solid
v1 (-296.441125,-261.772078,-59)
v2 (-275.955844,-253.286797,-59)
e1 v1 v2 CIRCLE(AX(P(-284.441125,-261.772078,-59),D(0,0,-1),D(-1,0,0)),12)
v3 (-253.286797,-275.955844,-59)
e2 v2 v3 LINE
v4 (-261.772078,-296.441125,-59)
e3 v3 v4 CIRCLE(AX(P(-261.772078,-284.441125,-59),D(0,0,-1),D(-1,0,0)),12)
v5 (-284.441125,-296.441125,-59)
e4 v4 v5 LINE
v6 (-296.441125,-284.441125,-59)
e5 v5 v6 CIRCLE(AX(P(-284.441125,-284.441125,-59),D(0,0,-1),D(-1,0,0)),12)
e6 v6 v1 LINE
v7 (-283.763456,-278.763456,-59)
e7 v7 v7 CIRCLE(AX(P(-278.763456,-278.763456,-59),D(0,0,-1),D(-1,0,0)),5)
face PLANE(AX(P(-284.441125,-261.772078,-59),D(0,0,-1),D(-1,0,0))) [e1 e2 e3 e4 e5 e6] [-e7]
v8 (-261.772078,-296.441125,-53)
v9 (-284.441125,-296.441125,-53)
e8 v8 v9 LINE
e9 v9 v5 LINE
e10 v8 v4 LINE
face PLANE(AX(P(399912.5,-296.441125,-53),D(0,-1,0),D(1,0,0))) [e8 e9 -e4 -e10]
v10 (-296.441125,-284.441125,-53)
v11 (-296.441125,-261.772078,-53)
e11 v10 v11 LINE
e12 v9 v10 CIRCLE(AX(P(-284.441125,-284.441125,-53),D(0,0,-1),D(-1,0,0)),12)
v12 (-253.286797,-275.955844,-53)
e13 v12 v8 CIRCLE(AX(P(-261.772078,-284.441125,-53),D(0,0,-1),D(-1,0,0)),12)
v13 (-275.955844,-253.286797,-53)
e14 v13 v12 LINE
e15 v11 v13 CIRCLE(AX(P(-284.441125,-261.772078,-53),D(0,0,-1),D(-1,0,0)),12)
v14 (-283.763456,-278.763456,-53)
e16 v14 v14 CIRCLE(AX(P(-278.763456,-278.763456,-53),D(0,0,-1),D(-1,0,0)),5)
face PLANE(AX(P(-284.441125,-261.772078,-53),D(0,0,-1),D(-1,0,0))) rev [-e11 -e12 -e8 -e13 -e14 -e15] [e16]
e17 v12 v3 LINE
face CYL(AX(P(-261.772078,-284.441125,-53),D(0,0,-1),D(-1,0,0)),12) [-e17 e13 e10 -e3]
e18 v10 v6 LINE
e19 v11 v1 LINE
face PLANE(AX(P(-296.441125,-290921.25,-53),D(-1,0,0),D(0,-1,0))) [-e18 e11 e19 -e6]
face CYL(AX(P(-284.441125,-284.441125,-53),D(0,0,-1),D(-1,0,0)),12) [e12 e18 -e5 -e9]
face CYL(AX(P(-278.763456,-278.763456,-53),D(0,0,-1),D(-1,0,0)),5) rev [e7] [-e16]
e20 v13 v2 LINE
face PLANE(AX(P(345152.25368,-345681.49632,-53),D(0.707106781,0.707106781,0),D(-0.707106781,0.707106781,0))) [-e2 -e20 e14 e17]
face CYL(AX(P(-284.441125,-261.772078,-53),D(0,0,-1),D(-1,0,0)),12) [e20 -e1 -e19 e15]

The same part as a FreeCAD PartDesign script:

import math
import FreeCAD as App
import Part
import Sketcher
from FreeCAD import Vector

doc = App.newDocument("Part")
body = doc.addObject("PartDesign::Body", "Body")

# Sketch on XY plane
sketch1 = doc.addObject("Sketcher::SketchObject", "Sketch")
body.addObject(sketch1)
sketch1.AttachmentSupport = (doc.XY_Plane, [""])
sketch1.MapMode = "FlatFace"
sketch1.AttachmentOffset = App.Placement(Vector(0, 0, -59), App.Rotation())
sketch1.addGeometry(Part.LineSegment(Vector(-253, -276, 0), Vector(-276, -253, 0)), False)
sketch1.addGeometry(Part.ArcOfCircle(Part.Circle(Vector(-284, -262, 0), Vector(0, 0, 1), 12), math.radians(45), math.radians(180)), False)
sketch1.addGeometry(Part.LineSegment(Vector(-296, -262, 0), Vector(-296, -284, 0)), False)
sketch1.addGeometry(Part.ArcOfCircle(Part.Circle(Vector(-284, -284, 0), Vector(0, 0, 1), 12), math.radians(-180), math.radians(-90)), False)
sketch1.addGeometry(Part.LineSegment(Vector(-284, -296, 0), Vector(-262, -296, 0)), False)
sketch1.addGeometry(Part.ArcOfCircle(Part.Circle(Vector(-262, -284, 0), Vector(0, 0, 1), 12), math.radians(-90), math.radians(45)), False)
sketch1.addGeometry(Part.Circle(Vector(-279, -279, 0), Vector(0, 0, 1), 5), False)
sketch1.addConstraint(Sketcher.Constraint("Tangent", 0, 2, 1, 1))
sketch1.addConstraint(Sketcher.Constraint("Tangent", 1, 2, 2, 1))
sketch1.addConstraint(Sketcher.Constraint("Tangent", 2, 2, 3, 1))
sketch1.addConstraint(Sketcher.Constraint("Tangent", 3, 2, 4, 1))
sketch1.addConstraint(Sketcher.Constraint("Tangent", 4, 2, 5, 1))
sketch1.addConstraint(Sketcher.Constraint("Tangent", 5, 2, 0, 1))
sketch1.addConstraint(Sketcher.Constraint("Vertical", 2))
sketch1.addConstraint(Sketcher.Constraint("Horizontal", 4))
sketch1.addConstraint(Sketcher.Constraint("Equal", 1, 3))
sketch1.addConstraint(Sketcher.Constraint("Equal", 3, 5))
sketch1.addConstraint(Sketcher.Constraint("Equal", 4, 2))
sketch1.addConstraint(Sketcher.Constraint("Diameter", 6, 10.0))
sketch1.addConstraint(Sketcher.Constraint("Radius", 1, 12.0))
sketch1.addConstraint(Sketcher.Constraint("DistanceX", 4, 1, 4, 2, 22.669048))
sketch1.addConstraint(Sketcher.Constraint("DistanceX", 3, 3, 6, 3, 5.67767))
sketch1.addConstraint(Sketcher.Constraint("DistanceY", 3, 3, 6, 3, 5.67767))
sketch1.addConstraint(Sketcher.Constraint("DistanceX", 1, 3, -1, 1, 284.441125))
sketch1.addConstraint(Sketcher.Constraint("DistanceY", 1, 3, -1, 1, 261.772078))
pad1 = doc.addObject("PartDesign::Pad", "Pad")
body.addObject(pad1)
pad1.Profile = sketch1
pad1.Length = 6

doc.recompute()
